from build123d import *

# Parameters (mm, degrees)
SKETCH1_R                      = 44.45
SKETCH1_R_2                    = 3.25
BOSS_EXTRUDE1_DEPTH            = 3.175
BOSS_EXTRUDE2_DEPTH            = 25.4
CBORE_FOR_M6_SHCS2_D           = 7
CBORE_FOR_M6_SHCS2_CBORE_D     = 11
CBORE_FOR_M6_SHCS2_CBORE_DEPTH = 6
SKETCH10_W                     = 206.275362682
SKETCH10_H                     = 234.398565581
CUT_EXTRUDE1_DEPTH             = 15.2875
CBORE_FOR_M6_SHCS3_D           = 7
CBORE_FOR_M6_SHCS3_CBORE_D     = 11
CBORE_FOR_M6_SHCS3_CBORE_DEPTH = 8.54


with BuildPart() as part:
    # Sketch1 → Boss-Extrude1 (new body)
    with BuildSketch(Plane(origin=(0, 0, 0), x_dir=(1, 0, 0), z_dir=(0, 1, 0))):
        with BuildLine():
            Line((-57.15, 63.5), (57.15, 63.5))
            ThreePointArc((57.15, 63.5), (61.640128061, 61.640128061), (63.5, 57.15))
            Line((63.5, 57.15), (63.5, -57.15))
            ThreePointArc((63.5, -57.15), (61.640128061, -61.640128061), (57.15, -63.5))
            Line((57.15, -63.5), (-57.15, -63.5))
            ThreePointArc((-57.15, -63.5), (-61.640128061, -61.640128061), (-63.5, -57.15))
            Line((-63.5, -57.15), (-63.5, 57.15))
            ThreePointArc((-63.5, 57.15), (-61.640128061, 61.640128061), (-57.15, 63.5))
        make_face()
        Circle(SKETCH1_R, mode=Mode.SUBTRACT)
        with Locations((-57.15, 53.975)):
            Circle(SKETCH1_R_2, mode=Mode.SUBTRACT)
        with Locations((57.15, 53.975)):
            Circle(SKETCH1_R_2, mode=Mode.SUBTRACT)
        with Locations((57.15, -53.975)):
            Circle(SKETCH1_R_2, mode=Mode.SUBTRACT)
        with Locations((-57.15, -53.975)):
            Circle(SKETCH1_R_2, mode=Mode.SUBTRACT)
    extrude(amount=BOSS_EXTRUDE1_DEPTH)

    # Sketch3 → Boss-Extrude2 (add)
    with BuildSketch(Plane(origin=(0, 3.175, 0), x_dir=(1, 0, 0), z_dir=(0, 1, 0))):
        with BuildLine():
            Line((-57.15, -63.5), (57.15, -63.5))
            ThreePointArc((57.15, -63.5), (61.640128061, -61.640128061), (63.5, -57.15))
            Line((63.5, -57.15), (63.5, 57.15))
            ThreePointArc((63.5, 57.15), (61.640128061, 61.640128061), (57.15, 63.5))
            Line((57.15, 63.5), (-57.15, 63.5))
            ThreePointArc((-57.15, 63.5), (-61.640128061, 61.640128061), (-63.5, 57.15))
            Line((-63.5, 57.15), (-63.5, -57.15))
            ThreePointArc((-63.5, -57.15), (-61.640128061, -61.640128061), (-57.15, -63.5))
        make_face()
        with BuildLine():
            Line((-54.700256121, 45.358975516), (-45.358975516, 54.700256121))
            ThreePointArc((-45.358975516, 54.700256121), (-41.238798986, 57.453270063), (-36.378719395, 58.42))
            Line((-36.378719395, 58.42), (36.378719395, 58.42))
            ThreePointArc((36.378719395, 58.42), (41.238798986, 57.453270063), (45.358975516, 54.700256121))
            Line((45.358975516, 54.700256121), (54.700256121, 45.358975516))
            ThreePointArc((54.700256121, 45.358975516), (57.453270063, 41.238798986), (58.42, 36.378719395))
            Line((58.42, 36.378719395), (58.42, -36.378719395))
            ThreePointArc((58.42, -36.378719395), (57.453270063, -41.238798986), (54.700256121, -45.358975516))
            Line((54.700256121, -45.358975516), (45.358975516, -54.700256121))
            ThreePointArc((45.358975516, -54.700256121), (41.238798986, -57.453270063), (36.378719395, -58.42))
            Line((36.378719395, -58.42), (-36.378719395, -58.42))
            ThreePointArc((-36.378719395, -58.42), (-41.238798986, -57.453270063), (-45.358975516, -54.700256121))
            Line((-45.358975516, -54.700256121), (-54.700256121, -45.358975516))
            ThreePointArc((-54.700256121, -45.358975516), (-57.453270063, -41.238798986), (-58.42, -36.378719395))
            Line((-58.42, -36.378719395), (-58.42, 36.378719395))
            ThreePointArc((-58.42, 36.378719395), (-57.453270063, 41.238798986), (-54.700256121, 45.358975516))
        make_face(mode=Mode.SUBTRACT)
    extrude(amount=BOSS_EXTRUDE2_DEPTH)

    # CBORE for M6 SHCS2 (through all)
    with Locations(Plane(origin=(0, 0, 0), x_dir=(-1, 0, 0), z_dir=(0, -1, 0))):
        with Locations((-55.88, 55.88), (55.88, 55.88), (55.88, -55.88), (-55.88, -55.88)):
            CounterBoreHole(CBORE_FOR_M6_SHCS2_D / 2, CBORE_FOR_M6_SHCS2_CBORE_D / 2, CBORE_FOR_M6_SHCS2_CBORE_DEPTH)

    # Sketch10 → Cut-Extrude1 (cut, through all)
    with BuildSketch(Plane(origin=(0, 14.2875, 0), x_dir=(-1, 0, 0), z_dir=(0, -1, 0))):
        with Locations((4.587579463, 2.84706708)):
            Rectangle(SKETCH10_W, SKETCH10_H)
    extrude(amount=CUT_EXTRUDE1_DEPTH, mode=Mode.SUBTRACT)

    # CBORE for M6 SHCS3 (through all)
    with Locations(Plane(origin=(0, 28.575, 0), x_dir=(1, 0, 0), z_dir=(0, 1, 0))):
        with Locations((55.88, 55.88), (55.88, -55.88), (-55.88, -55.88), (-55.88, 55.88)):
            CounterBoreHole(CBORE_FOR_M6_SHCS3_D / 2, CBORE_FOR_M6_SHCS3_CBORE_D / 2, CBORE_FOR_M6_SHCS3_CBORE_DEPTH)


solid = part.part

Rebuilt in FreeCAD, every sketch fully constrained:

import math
import FreeCAD as App
import Part
import Sketcher

V = App.Vector
Q = App.Units.Quantity

doc = App.newDocument("Part")
body = doc.addObject("PartDesign::Body", "Body")

# Sketch on XZ plane
sketch1 = body.newObject("Sketcher::SketchObject", "Sketch")
sketch1.AttachmentSupport = (doc.getObject("XZ_Plane"), [""])
sketch1.MapMode = "FlatFace"
sketch1.addGeometry([
    Part.LineSegment(V(57.1, -63.5, 0), V(-57.1, -63.5, 0)),  # 0
    Part.ArcOfCircle(Part.Circle(V(-57.2, -57.2, 0), V(0, 0, 1), 6.3), math.radians(180), math.radians(270)),  # 1
    Part.LineSegment(V(-63.5, -57.1, 0), V(-63.5, 57.1, 0)),  # 2
    Part.ArcOfCircle(Part.Circle(V(-57.2, 57.2, 0), V(0, 0, 1), 6.3), math.radians(90), math.radians(180)),  # 3
    Part.LineSegment(V(-57.1, 63.5, 0), V(57.1, 63.5, 0)),  # 4
    Part.ArcOfCircle(Part.Circle(V(57.2, 57.2, 0), V(0, 0, 1), 6.3), math.radians(0), math.radians(90)),  # 5
    Part.LineSegment(V(63.5, 57.1, 0), V(63.5, -57.1, 0)),  # 6
    Part.ArcOfCircle(Part.Circle(V(57.2, -57.2, 0), V(0, 0, 1), 6.3), math.radians(-90), math.radians(0)),  # 7
    Part.Circle(V(57.1, 54, 0), V(0, 0, 1), 3.2),  # 8
    Part.Circle(V(-57.1, 54, 0), V(0, 0, 1), 3.2),  # 9
    Part.Circle(V(57.1, -54, 0), V(0, 0, 1), 3.2),  # 10
    Part.Circle(V(0, 0, 0), V(0, 0, 1), 44.5),  # 11
    Part.Circle(V(-57.1, -54, 0), V(0, 0, 1), 3.2),  # 12
], False)
sketch1.addConstraint([
    Sketcher.Constraint("Tangent", 0, 2, 1, 2),
    Sketcher.Constraint("Tangent", 1, 1, 2, 1),
    Sketcher.Constraint("Tangent", 2, 2, 3, 2),
    Sketcher.Constraint("Tangent", 3, 1, 4, 1),
    Sketcher.Constraint("Tangent", 4, 2, 5, 2),
    Sketcher.Constraint("Tangent", 5, 1, 6, 1),
    Sketcher.Constraint("Tangent", 6, 2, 7, 2),
    Sketcher.Constraint("Tangent", 7, 1, 0, 1),
    Sketcher.Constraint("Horizontal", 0),
    Sketcher.Constraint("Vertical", 2),
    Sketcher.Constraint("Horizontal", 4),
    Sketcher.Constraint("Vertical", 6),
    Sketcher.Constraint("Coincident", 11, 3, -1, 1),
    Sketcher.Constraint("Equal", 1, 3),
    Sketcher.Constraint("Equal", 3, 5),
    Sketcher.Constraint("Equal", 5, 7),
    Sketcher.Constraint("Equal", 8, 9),
    Sketcher.Constraint("Equal", 9, 10),
    Sketcher.Constraint("Equal", 10, 12),
    Sketcher.Constraint("Symmetric", 1, 3, 5, 3, -1, 1),
    Sketcher.Constraint("Symmetric", 9, 3, 10, 3, -1, 1),
    Sketcher.Constraint("Symmetric", 8, 3, 12, 3, -1, 1),
    Sketcher.Constraint("Symmetric", 8, 3, 9, 3, -2),
    Sketcher.Constraint("Vertical", 7, 3, 8, 3),
    Sketcher.Constraint("Equal", 4, 2),
    Sketcher.Constraint("Diameter", 11, Q("3.5 in")),
    Sketcher.Constraint("Radius", 1, Q("0.25 in")),
    Sketcher.Constraint("DistanceX", 0, 2, 0, 1, Q("4.5 in")),
    Sketcher.Constraint("Diameter", 8, 6.5),
    Sketcher.Constraint("DistanceY", 10, 3, 8, 3, Q("4.25 in")),
])
pad1 = body.newObject("PartDesign::Pad", "Pad")
pad1.Profile = sketch1
pad1.Length = Q("0.125 in")
pad1.Reversed = True

# Sketch on XZ plane
sketch2 = body.newObject("Sketcher::SketchObject", "Sketch001")
sketch2.AttachmentSupport = (doc.getObject("XZ_Plane"), [""])
sketch2.MapMode = "FlatFace"
sketch2.AttachmentOffset = App.Placement(V(0, 0, -0.125 * 25.4), App.Rotation())
sketch2.addGeometry([
    Part.LineSegment(V(-57, 64, 0), V(57, 64, 0)),  # 0
    Part.ArcOfCircle(Part.Circle(V(57, 57, 0), V(0, 0, 1), 6), math.radians(0), math.radians(90)),  # 1
    Part.LineSegment(V(64, 57, 0), V(64, -57, 0)),  # 2
    Part.ArcOfCircle(Part.Circle(V(57, -57, 0), V(0, 0, 1), 6), math.radians(-90), math.radians(0)),  # 3
    Part.LineSegment(V(57, -64, 0), V(-57, -64, 0)),  # 4
    Part.ArcOfCircle(Part.Circle(V(-57, -57, 0), V(0, 0, 1), 6), math.radians(180), math.radians(270)),  # 5
    Part.LineSegment(V(-64, -57, 0), V(-64, 57, 0)),  # 6
    Part.ArcOfCircle(Part.Circle(V(-57, 57, 0), V(0, 0, 1), 6), math.radians(90), math.radians(180)),  # 7
    Part.ArcOfCircle(Part.Circle(V(-46, -36, 0), V(0, 0, 1), 13), math.radians(180), math.radians(225)),  # 8
    Part.LineSegment(V(-55, -45, 0), V(-45, -55, 0)),  # 9
    Part.ArcOfCircle(Part.Circle(V(-36, -46, 0), V(0, 0, 1), 13), math.radians(-135), math.radians(-90)),  # 10
    Part.LineSegment(V(-36, -58, 0), V(36, -58, 0)),  # 11
    Part.ArcOfCircle(Part.Circle(V(36, -46, 0), V(0, 0, 1), 13), math.radians(-90), math.radians(-45)),  # 12
    Part.LineSegment(V(45, -55, 0), V(55, -45, 0)),  # 13
    Part.ArcOfCircle(Part.Circle(V(46, -36, 0), V(0, 0, 1), 13), math.radians(-45), math.radians(0)),  # 14
    Part.LineSegment(V(58, -36, 0), V(58, 36, 0)),  # 15
    Part.ArcOfCircle(Part.Circle(V(46, 36, 0), V(0, 0, 1), 13), math.radians(0), math.radians(45)),  # 16
    Part.LineSegment(V(55, 45, 0), V(45, 55, 0)),  # 17
    Part.ArcOfCircle(Part.Circle(V(36, 46, 0), V(0, 0, 1), 13), math.radians(45), math.radians(90)),  # 18
    Part.LineSegment(V(36, 58, 0), V(-36, 58, 0)),  # 19
    Part.ArcOfCircle(Part.Circle(V(-36, 46, 0), V(0, 0, 1), 13), math.radians(90), math.radians(135)),  # 20
    Part.LineSegment(V(-45, 55, 0), V(-55, 45, 0)),  # 21
    Part.ArcOfCircle(Part.Circle(V(-46, 36, 0), V(0, 0, 1), 13), math.radians(135), math.radians(180)),  # 22
    Part.LineSegment(V(-58, 36, 0), V(-58, -36, 0)),  # 23
], False)
sketch2.addConstraint([
    Sketcher.Constraint("Tangent", 0, 2, 1, 2),
    Sketcher.Constraint("Tangent", 1, 1, 2, 1),
    Sketcher.Constraint("Tangent", 2, 2, 3, 2),
    Sketcher.Constraint("Tangent", 3, 1, 4, 1),
    Sketcher.Constraint("Tangent", 4, 2, 5, 2),
    Sketcher.Constraint("Tangent", 5, 1, 6, 1),
    Sketcher.Constraint("Tangent", 6, 2, 7, 2),
    Sketcher.Constraint("Tangent", 7, 1, 0, 1),
    Sketcher.Constraint("Tangent", 8, 2, 9, 1),
    Sketcher.Constraint("Tangent", 9, 2, 10, 1),
    Sketcher.Constraint("Tangent", 10, 2, 11, 1),
    Sketcher.Constraint("Tangent", 11, 2, 12, 1),
    Sketcher.Constraint("Tangent", 12, 2, 13, 1),
    Sketcher.Constraint("Tangent", 13, 2, 14, 1),
    Sketcher.Constraint("Tangent", 14, 2, 15, 1),
    Sketcher.Constraint("Tangent", 15, 2, 16, 1),
    Sketcher.Constraint("Tangent", 16, 2, 17, 1),
    Sketcher.Constraint("Tangent", 17, 2, 18, 1),
    Sketcher.Constraint("Tangent", 18, 2, 19, 1),
    Sketcher.Constraint("Tangent", 19, 2, 20, 1),
    Sketcher.Constraint("Tangent", 20, 2, 21, 1),
    Sketcher.Constraint("Tangent", 21, 2, 22, 1),
    Sketcher.Constraint("Tangent", 22, 2, 23, 1),
    Sketcher.Constraint("Tangent", 23, 2, 8, 1),
    Sketcher.Constraint("Horizontal", 0),
    Sketcher.Constraint("Vertical", 2),
    Sketcher.Constraint("Horizontal", 4),
    Sketcher.Constraint("Vertical", 6),
    Sketcher.Constraint("Horizontal", 11),
    Sketcher.Constraint("Vertical", 15),
    Sketcher.Constraint("Horizontal", 19),
    Sketcher.Constraint("Vertical", 23),
    Sketcher.Constraint("Equal", 1, 3),
    Sketcher.Constraint("Equal", 3, 5),
    Sketcher.Constraint("Equal", 5, 7),
    Sketcher.Constraint("Equal", 8, 10),
    Sketcher.Constraint("Equal", 10, 12),
    Sketcher.Constraint("Equal", 12, 14),
    Sketcher.Constraint("Equal", 14, 16),
    Sketcher.Constraint("Equal", 16, 18),
    Sketcher.Constraint("Equal", 18, 20),
    Sketcher.Constraint("Equal", 20, 22),
    Sketcher.Constraint("Symmetric", 1, 3, 5, 3, -1, 1),
    Sketcher.Constraint("Symmetric", 8, 3, 16, 3, -1, 1),
    Sketcher.Constraint("Symmetric", 10, 3, 18, 3, -1, 1),
    Sketcher.Constraint("Symmetric", 12, 2, 20, 2, -1, 1),
    Sketcher.Constraint("Symmetric", 9, 2, 12, 2, -2),
    Sketcher.Constraint("Perpendicular", 9, 13),
    Sketcher.Constraint("Equal", 4, 2),
    Sketcher.Constraint("Equal", 19, 15),
    Sketcher.Constraint("Radius", 8, Q("0.5 in")),
    Sketcher.Constraint("Radius", 1, Q("0.25 in")),
    Sketcher.Constraint("DistanceX", 0, 1, 0, 2, Q("4.5 in")),
    Sketcher.Constraint("DistanceX", 8, 3, -1, 1, Q("1.8 in")),
    Sketcher.Constraint("DistanceX", 11, 1, 11, 2, 72.757439),
])
pad2 = body.newObject("PartDesign::Pad", "Pad001")
pad2.Profile = sketch2
pad2.Length = Q("1 in")
pad2.Reversed = True

# Sketch on XZ plane
sketch3 = body.newObject("Sketcher::SketchObject", "Sketch002")
sketch3.AttachmentSupport = (doc.getObject("XZ_Plane"), [""])
sketch3.MapMode = "FlatFace"
sketch3.addGeometry([
    Part.Circle(V(55.9, -55.9, 0), V(0, 0, 1), 3.5),
    Part.Circle(V(-55.9, -55.9, 0), V(0, 0, 1), 3.5),
    Part.Circle(V(-55.9, 55.9, 0), V(0, 0, 1), 3.5),
    Part.Circle(V(55.9, 55.9, 0), V(0, 0, 1), 3.5),
], False)
sketch3.addConstraint([
    Sketcher.Constraint("Equal", 0, 1),
    Sketcher.Constraint("Equal", 1, 2),
    Sketcher.Constraint("Equal", 2, 3),
    Sketcher.Constraint("Symmetric", 0, 3, 2, 3, -1, 1),
    Sketcher.Constraint("Symmetric", 1, 3, 3, 3, -1, 1),
    Sketcher.Constraint("Symmetric", 0, 3, 1, 3, -2),
    Sketcher.Constraint("DistanceX", -1, 1, 0, 3, Q("2.2 in")),
    Sketcher.Constraint("DistanceY", 0, 3, -1, 1, Q("2.2 in")),
    Sketcher.Constraint("Diameter", 0, 7.0),
])
doc.recompute()
hole = body.newObject("PartDesign::Hole", "Hole")
hole.Profile = sketch3
hole.ThreadType = "None"
hole.Diameter = 7
hole.DepthType = "ThroughAll"
hole.HoleCutType = "Counterbore"
hole.HoleCutDiameter = 11
hole.HoleCutDepth = 6

# Sketch on XZ plane
sketch4 = body.newObject("Sketcher::SketchObject", "Sketch003")
sketch4.AttachmentSupport = (doc.getObject("XZ_Plane"), [""])
sketch4.MapMode = "FlatFace"
sketch4.AttachmentOffset = App.Placement(V(0, 0, -0.5625 * 25.4), App.Rotation())
sketch4.addGeometry([
    Part.LineSegment(V(99, -120, 0), V(99, 114, 0)),
    Part.LineSegment(V(99, 114, 0), V(-108, 114, 0)),
    Part.LineSegment(V(-108, 114, 0), V(-108, -120, 0)),
    Part.LineSegment(V(-108, -120, 0), V(99, -120, 0)),
], False)
sketch4.addConstraint([
    Sketcher.Constraint("Coincident", 0, 2, 1, 1),
    Sketcher.Constraint("Coincident", 1, 2, 2, 1),
    Sketcher.Constraint("Coincident", 2, 2, 3, 1),
    Sketcher.Constraint("Coincident", 3, 2, 0, 1),
    Sketcher.Constraint("Vertical", 0),
    Sketcher.Constraint("Horizontal", 1),
    Sketcher.Constraint("Vertical", 2),
    Sketcher.Constraint("Horizontal", 3),
    Sketcher.Constraint("DistanceX", -1, 1, 0, 2, 98.550102),
    Sketcher.Constraint("DistanceX", 1, 2, 1, 1, 206.275363),
    Sketcher.Constraint("DistanceY", 0, 1, 0, 2, 234.398566),
    Sketcher.Constraint("DistanceY", 2, 2, -1, 1, 120.04635),
])
pocket1 = body.newObject("PartDesign::Pocket", "Pocket")
pocket1.Profile = sketch4
pocket1.Type = "ThroughAll"
pocket1.Reversed = True

# Sketch on XZ plane
sketch5 = body.newObject("Sketcher::SketchObject", "Sketch004")
sketch5.AttachmentSupport = (doc.getObject("XZ_Plane"), [""])
sketch5.MapMode = "FlatFace"
sketch5.AttachmentOffset = App.Placement(V(0, 0, -1.125 * 25.4), App.Rotation())
sketch5.addGeometry([
    Part.Circle(V(55.9, -55.9, 0), V(0, 0, 1), 3.5),
    Part.Circle(V(55.9, 55.9, 0), V(0, 0, 1), 3.5),
    Part.Circle(V(-55.9, 55.9, 0), V(0, 0, 1), 3.5),
    Part.Circle(V(-55.9, -55.9, 0), V(0, 0, 1), 3.5),
], False)
sketch5.addConstraint([
    Sketcher.Constraint("Equal", 0, 1),
    Sketcher.Constraint("Equal", 1, 2),
    Sketcher.Constraint("Equal", 2, 3),
    Sketcher.Constraint("Symmetric", 0, 3, 2, 3, -1, 1),
    Sketcher.Constraint("Symmetric", 1, 3, 3, 3, -1, 1),
    Sketcher.Constraint("Symmetric", 1, 3, 2, 3, -2),
    Sketcher.Constraint("DistanceX", -1, 1, 0, 3, Q("2.2 in")),
    Sketcher.Constraint("DistanceY", 0, 3, -1, 1, Q("2.2 in")),
    Sketcher.Constraint("Diameter", 0, 7.0),
])
doc.recompute()
hole2 = body.newObject("PartDesign::Hole", "Hole001")
hole2.Profile = sketch5
hole2.ThreadType = "None"
hole2.Diameter = 7
hole2.DepthType = "ThroughAll"
hole2.HoleCutType = "Counterbore"
hole2.HoleCutDiameter = 11
hole2.HoleCutDepth = 8.54
hole2.Reversed = True

doc.recompute()
